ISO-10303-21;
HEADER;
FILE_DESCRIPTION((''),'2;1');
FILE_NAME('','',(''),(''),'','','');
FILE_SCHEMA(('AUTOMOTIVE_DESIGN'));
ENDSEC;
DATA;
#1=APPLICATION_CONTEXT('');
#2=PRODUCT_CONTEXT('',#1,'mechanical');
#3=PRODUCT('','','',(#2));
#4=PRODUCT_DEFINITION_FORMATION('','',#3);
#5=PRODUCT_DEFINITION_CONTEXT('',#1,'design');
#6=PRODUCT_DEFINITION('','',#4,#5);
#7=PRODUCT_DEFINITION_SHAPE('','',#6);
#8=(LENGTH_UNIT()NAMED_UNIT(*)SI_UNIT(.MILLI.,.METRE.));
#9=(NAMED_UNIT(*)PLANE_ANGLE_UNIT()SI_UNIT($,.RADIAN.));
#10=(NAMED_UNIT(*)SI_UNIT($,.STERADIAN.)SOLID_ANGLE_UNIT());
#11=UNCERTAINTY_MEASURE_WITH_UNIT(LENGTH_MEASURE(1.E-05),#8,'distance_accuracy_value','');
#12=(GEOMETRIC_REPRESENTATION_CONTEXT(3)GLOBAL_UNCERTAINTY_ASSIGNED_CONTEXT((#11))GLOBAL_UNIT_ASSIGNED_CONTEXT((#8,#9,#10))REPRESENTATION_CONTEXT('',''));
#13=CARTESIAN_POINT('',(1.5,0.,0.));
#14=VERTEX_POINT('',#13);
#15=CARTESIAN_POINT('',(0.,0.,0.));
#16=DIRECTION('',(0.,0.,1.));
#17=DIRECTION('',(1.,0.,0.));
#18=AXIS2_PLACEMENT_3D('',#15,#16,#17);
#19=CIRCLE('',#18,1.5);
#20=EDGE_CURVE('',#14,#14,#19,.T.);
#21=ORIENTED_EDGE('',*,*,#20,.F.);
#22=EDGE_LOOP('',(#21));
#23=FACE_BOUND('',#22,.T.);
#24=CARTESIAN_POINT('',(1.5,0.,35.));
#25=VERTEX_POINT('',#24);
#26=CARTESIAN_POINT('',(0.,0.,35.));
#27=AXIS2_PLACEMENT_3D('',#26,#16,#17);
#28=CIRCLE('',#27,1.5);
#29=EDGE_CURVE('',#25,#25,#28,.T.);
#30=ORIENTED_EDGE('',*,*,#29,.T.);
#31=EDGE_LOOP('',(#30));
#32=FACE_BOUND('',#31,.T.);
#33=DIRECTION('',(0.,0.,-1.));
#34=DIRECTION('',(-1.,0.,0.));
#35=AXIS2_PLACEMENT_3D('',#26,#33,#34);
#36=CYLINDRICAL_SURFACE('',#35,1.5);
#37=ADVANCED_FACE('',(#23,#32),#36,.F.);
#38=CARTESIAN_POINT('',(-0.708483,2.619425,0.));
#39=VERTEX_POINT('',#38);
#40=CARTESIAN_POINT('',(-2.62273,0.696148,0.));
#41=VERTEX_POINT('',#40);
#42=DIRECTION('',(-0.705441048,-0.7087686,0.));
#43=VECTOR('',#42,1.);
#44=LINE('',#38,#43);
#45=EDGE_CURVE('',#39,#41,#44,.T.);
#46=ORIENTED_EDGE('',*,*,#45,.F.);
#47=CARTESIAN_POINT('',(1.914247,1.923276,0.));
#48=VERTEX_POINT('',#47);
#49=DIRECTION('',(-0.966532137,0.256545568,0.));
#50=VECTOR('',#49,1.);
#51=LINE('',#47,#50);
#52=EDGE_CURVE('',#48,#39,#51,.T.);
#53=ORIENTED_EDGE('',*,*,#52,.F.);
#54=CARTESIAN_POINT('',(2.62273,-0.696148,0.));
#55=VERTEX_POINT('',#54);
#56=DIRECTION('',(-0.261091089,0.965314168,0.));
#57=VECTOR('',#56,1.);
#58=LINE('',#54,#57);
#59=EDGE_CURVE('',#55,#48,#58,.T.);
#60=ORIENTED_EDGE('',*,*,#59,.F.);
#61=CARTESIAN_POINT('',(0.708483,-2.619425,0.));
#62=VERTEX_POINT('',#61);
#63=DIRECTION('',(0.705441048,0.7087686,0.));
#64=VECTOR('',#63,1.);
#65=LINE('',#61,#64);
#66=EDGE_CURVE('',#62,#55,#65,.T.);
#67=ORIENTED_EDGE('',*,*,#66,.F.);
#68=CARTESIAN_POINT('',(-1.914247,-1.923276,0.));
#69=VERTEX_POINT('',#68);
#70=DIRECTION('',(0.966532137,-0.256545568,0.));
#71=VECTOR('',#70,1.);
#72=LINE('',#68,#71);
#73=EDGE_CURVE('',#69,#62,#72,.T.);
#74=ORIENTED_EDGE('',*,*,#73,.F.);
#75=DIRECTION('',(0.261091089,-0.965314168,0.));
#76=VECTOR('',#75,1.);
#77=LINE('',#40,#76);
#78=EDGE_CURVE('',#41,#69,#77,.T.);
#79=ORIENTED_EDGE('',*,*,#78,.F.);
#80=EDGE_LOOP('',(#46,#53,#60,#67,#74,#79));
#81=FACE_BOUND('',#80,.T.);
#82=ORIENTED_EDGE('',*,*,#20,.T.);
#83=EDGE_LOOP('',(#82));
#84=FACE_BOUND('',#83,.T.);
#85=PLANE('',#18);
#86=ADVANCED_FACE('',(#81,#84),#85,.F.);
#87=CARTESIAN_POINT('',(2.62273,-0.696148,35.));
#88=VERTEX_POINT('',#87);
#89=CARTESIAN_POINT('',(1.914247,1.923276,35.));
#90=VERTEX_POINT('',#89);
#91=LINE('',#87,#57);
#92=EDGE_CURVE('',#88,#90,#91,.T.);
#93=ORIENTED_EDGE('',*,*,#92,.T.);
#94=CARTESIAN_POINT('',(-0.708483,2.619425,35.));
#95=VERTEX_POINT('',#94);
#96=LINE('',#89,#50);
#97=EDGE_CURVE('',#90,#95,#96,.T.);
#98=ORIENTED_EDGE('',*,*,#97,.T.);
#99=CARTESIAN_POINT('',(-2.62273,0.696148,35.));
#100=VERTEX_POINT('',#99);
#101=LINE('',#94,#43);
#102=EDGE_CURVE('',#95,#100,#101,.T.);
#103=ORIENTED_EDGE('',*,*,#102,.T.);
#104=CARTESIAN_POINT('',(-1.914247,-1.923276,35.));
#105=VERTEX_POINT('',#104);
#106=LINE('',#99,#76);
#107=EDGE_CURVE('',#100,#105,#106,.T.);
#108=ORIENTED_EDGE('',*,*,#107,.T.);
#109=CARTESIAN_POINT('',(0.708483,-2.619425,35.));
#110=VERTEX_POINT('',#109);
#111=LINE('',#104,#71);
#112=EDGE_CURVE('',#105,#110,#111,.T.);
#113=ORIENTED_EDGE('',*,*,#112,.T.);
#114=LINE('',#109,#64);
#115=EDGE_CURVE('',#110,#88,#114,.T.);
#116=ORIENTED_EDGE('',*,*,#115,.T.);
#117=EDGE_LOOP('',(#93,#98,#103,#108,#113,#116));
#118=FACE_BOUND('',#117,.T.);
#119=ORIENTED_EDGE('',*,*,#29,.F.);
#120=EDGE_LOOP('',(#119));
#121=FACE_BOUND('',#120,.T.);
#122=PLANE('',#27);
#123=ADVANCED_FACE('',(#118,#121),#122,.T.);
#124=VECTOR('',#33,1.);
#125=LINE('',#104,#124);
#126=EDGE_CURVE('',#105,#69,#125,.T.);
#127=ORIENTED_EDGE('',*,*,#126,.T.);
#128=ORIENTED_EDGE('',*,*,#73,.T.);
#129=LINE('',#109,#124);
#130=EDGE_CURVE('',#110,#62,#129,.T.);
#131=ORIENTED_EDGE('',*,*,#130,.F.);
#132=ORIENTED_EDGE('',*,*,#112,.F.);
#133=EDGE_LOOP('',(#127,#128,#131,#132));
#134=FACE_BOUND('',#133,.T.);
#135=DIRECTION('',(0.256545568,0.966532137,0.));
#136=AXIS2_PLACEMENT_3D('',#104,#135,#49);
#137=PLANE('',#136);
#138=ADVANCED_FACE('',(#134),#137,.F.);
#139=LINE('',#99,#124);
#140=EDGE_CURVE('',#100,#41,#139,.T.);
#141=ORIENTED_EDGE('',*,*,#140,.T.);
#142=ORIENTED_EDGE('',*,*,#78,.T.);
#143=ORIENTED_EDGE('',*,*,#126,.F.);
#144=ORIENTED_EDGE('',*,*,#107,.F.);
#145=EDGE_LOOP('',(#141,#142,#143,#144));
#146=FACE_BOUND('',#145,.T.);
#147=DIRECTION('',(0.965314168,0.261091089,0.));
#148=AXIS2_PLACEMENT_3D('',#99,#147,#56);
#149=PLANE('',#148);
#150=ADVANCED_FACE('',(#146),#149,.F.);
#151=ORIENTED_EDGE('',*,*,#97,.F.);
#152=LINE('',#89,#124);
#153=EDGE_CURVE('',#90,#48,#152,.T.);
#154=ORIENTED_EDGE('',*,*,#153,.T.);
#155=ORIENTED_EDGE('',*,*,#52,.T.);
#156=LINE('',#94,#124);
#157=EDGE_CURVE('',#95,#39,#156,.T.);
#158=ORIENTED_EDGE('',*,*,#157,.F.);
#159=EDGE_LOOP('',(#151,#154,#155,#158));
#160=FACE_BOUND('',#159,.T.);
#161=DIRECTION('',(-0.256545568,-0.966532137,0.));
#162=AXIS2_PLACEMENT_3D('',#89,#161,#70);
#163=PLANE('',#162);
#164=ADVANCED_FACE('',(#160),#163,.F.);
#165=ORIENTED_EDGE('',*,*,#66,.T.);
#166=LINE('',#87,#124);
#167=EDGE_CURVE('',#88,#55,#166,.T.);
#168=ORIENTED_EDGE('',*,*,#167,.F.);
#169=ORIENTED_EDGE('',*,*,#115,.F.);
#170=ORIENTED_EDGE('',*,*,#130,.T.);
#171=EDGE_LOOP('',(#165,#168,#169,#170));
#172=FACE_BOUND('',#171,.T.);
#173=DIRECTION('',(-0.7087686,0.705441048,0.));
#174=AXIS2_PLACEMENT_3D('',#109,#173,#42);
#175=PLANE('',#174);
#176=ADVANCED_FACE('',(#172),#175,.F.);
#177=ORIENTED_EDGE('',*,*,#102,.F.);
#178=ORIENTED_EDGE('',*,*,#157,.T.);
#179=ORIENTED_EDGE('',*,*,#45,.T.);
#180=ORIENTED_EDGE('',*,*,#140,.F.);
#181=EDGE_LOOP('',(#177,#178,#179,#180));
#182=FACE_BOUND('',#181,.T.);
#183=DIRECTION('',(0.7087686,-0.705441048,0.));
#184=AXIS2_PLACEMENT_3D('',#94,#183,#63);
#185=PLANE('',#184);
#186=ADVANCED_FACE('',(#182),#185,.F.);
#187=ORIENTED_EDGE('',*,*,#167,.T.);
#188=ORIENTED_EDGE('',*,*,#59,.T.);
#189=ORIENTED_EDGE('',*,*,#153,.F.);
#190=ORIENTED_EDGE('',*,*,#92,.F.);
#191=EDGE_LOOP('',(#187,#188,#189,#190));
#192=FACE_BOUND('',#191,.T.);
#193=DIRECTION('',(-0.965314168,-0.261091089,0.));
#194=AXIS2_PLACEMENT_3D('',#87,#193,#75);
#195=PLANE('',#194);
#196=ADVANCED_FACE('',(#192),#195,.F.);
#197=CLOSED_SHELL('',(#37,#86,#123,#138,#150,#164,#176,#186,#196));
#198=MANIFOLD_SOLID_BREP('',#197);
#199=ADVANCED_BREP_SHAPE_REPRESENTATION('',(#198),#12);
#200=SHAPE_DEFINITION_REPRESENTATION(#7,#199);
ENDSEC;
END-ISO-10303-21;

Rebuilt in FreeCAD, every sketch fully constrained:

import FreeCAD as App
import Part
import Sketcher
from FreeCAD import Vector
Q = App.Units.Quantity

doc = App.newDocument("Part")
body = doc.addObject("PartDesign::Body", "Body")

# Sketch on XY plane
sketch1 = body.newObject("Sketcher::SketchObject", "Sketch")
sketch1.AttachmentSupport = (doc.getObject("XY_Plane"), [""])
sketch1.MapMode = "FlatFace"
sketch1.addGeometry([
    Part.LineSegment(Vector(1.9, 1.9, 0), Vector(-0.7, 2.6, 0)),  # 0
    Part.LineSegment(Vector(-0.7, 2.6, 0), Vector(-2.6, 0.7, 0)),  # 1
    Part.LineSegment(Vector(-2.6, 0.7, 0), Vector(-1.9, -1.9, 0)),  # 2
    Part.LineSegment(Vector(-1.9, -1.9, 0), Vector(0.7, -2.6, 0)),  # 3
    Part.LineSegment(Vector(0.7, -2.6, 0), Vector(2.6, -0.7, 0)),  # 4
    Part.LineSegment(Vector(2.6, -0.7, 0), Vector(1.9, 1.9, 0)),  # 5
    Part.Circle(Vector(0, 0, 0), Vector(0, 0, 1), 1.5),  # 6
], False)
sketch1.addConstraint([
    Sketcher.Constraint("Coincident", 0, 2, 1, 1),
    Sketcher.Constraint("Coincident", 1, 2, 2, 1),
    Sketcher.Constraint("Coincident", 2, 2, 3, 1),
    Sketcher.Constraint("Coincident", 3, 2, 4, 1),
    Sketcher.Constraint("Coincident", 4, 2, 5, 1),
    Sketcher.Constraint("Coincident", 5, 2, 0, 1),
    Sketcher.Constraint("Coincident", 6, 3, -1, 1),
    Sketcher.Constraint("Symmetric", 0, 2, 3, 2, -1, 1),
    Sketcher.Constraint("Symmetric", 1, 2, 4, 2, -1, 1),
    Sketcher.Constraint("Symmetric", 2, 2, 5, 2, -1, 1),
    Sketcher.Constraint("Equal", 0, 1),
    Sketcher.Constraint("Equal", 1, 2),
    Sketcher.Constraint("Diameter", 6, Q("3 mm")),
    Sketcher.Constraint("DistanceY", 2, 2, 0, 2, Q("4.542701 mm")),
    Sketcher.Constraint("DistanceX", 1, 2, -1, 1, Q("2.62273 mm")),
    Sketcher.Constraint("DistanceY", -1, 1, 1, 2, Q("0.696148 mm")),
    Sketcher.Constraint("DistanceX", 2, 2, 3, 2, Q("2.62273 mm")),
])
pad1 = body.newObject("PartDesign::Pad", "Pad")
pad1.Profile = sketch1
pad1.Length = 35

doc.recompute()
